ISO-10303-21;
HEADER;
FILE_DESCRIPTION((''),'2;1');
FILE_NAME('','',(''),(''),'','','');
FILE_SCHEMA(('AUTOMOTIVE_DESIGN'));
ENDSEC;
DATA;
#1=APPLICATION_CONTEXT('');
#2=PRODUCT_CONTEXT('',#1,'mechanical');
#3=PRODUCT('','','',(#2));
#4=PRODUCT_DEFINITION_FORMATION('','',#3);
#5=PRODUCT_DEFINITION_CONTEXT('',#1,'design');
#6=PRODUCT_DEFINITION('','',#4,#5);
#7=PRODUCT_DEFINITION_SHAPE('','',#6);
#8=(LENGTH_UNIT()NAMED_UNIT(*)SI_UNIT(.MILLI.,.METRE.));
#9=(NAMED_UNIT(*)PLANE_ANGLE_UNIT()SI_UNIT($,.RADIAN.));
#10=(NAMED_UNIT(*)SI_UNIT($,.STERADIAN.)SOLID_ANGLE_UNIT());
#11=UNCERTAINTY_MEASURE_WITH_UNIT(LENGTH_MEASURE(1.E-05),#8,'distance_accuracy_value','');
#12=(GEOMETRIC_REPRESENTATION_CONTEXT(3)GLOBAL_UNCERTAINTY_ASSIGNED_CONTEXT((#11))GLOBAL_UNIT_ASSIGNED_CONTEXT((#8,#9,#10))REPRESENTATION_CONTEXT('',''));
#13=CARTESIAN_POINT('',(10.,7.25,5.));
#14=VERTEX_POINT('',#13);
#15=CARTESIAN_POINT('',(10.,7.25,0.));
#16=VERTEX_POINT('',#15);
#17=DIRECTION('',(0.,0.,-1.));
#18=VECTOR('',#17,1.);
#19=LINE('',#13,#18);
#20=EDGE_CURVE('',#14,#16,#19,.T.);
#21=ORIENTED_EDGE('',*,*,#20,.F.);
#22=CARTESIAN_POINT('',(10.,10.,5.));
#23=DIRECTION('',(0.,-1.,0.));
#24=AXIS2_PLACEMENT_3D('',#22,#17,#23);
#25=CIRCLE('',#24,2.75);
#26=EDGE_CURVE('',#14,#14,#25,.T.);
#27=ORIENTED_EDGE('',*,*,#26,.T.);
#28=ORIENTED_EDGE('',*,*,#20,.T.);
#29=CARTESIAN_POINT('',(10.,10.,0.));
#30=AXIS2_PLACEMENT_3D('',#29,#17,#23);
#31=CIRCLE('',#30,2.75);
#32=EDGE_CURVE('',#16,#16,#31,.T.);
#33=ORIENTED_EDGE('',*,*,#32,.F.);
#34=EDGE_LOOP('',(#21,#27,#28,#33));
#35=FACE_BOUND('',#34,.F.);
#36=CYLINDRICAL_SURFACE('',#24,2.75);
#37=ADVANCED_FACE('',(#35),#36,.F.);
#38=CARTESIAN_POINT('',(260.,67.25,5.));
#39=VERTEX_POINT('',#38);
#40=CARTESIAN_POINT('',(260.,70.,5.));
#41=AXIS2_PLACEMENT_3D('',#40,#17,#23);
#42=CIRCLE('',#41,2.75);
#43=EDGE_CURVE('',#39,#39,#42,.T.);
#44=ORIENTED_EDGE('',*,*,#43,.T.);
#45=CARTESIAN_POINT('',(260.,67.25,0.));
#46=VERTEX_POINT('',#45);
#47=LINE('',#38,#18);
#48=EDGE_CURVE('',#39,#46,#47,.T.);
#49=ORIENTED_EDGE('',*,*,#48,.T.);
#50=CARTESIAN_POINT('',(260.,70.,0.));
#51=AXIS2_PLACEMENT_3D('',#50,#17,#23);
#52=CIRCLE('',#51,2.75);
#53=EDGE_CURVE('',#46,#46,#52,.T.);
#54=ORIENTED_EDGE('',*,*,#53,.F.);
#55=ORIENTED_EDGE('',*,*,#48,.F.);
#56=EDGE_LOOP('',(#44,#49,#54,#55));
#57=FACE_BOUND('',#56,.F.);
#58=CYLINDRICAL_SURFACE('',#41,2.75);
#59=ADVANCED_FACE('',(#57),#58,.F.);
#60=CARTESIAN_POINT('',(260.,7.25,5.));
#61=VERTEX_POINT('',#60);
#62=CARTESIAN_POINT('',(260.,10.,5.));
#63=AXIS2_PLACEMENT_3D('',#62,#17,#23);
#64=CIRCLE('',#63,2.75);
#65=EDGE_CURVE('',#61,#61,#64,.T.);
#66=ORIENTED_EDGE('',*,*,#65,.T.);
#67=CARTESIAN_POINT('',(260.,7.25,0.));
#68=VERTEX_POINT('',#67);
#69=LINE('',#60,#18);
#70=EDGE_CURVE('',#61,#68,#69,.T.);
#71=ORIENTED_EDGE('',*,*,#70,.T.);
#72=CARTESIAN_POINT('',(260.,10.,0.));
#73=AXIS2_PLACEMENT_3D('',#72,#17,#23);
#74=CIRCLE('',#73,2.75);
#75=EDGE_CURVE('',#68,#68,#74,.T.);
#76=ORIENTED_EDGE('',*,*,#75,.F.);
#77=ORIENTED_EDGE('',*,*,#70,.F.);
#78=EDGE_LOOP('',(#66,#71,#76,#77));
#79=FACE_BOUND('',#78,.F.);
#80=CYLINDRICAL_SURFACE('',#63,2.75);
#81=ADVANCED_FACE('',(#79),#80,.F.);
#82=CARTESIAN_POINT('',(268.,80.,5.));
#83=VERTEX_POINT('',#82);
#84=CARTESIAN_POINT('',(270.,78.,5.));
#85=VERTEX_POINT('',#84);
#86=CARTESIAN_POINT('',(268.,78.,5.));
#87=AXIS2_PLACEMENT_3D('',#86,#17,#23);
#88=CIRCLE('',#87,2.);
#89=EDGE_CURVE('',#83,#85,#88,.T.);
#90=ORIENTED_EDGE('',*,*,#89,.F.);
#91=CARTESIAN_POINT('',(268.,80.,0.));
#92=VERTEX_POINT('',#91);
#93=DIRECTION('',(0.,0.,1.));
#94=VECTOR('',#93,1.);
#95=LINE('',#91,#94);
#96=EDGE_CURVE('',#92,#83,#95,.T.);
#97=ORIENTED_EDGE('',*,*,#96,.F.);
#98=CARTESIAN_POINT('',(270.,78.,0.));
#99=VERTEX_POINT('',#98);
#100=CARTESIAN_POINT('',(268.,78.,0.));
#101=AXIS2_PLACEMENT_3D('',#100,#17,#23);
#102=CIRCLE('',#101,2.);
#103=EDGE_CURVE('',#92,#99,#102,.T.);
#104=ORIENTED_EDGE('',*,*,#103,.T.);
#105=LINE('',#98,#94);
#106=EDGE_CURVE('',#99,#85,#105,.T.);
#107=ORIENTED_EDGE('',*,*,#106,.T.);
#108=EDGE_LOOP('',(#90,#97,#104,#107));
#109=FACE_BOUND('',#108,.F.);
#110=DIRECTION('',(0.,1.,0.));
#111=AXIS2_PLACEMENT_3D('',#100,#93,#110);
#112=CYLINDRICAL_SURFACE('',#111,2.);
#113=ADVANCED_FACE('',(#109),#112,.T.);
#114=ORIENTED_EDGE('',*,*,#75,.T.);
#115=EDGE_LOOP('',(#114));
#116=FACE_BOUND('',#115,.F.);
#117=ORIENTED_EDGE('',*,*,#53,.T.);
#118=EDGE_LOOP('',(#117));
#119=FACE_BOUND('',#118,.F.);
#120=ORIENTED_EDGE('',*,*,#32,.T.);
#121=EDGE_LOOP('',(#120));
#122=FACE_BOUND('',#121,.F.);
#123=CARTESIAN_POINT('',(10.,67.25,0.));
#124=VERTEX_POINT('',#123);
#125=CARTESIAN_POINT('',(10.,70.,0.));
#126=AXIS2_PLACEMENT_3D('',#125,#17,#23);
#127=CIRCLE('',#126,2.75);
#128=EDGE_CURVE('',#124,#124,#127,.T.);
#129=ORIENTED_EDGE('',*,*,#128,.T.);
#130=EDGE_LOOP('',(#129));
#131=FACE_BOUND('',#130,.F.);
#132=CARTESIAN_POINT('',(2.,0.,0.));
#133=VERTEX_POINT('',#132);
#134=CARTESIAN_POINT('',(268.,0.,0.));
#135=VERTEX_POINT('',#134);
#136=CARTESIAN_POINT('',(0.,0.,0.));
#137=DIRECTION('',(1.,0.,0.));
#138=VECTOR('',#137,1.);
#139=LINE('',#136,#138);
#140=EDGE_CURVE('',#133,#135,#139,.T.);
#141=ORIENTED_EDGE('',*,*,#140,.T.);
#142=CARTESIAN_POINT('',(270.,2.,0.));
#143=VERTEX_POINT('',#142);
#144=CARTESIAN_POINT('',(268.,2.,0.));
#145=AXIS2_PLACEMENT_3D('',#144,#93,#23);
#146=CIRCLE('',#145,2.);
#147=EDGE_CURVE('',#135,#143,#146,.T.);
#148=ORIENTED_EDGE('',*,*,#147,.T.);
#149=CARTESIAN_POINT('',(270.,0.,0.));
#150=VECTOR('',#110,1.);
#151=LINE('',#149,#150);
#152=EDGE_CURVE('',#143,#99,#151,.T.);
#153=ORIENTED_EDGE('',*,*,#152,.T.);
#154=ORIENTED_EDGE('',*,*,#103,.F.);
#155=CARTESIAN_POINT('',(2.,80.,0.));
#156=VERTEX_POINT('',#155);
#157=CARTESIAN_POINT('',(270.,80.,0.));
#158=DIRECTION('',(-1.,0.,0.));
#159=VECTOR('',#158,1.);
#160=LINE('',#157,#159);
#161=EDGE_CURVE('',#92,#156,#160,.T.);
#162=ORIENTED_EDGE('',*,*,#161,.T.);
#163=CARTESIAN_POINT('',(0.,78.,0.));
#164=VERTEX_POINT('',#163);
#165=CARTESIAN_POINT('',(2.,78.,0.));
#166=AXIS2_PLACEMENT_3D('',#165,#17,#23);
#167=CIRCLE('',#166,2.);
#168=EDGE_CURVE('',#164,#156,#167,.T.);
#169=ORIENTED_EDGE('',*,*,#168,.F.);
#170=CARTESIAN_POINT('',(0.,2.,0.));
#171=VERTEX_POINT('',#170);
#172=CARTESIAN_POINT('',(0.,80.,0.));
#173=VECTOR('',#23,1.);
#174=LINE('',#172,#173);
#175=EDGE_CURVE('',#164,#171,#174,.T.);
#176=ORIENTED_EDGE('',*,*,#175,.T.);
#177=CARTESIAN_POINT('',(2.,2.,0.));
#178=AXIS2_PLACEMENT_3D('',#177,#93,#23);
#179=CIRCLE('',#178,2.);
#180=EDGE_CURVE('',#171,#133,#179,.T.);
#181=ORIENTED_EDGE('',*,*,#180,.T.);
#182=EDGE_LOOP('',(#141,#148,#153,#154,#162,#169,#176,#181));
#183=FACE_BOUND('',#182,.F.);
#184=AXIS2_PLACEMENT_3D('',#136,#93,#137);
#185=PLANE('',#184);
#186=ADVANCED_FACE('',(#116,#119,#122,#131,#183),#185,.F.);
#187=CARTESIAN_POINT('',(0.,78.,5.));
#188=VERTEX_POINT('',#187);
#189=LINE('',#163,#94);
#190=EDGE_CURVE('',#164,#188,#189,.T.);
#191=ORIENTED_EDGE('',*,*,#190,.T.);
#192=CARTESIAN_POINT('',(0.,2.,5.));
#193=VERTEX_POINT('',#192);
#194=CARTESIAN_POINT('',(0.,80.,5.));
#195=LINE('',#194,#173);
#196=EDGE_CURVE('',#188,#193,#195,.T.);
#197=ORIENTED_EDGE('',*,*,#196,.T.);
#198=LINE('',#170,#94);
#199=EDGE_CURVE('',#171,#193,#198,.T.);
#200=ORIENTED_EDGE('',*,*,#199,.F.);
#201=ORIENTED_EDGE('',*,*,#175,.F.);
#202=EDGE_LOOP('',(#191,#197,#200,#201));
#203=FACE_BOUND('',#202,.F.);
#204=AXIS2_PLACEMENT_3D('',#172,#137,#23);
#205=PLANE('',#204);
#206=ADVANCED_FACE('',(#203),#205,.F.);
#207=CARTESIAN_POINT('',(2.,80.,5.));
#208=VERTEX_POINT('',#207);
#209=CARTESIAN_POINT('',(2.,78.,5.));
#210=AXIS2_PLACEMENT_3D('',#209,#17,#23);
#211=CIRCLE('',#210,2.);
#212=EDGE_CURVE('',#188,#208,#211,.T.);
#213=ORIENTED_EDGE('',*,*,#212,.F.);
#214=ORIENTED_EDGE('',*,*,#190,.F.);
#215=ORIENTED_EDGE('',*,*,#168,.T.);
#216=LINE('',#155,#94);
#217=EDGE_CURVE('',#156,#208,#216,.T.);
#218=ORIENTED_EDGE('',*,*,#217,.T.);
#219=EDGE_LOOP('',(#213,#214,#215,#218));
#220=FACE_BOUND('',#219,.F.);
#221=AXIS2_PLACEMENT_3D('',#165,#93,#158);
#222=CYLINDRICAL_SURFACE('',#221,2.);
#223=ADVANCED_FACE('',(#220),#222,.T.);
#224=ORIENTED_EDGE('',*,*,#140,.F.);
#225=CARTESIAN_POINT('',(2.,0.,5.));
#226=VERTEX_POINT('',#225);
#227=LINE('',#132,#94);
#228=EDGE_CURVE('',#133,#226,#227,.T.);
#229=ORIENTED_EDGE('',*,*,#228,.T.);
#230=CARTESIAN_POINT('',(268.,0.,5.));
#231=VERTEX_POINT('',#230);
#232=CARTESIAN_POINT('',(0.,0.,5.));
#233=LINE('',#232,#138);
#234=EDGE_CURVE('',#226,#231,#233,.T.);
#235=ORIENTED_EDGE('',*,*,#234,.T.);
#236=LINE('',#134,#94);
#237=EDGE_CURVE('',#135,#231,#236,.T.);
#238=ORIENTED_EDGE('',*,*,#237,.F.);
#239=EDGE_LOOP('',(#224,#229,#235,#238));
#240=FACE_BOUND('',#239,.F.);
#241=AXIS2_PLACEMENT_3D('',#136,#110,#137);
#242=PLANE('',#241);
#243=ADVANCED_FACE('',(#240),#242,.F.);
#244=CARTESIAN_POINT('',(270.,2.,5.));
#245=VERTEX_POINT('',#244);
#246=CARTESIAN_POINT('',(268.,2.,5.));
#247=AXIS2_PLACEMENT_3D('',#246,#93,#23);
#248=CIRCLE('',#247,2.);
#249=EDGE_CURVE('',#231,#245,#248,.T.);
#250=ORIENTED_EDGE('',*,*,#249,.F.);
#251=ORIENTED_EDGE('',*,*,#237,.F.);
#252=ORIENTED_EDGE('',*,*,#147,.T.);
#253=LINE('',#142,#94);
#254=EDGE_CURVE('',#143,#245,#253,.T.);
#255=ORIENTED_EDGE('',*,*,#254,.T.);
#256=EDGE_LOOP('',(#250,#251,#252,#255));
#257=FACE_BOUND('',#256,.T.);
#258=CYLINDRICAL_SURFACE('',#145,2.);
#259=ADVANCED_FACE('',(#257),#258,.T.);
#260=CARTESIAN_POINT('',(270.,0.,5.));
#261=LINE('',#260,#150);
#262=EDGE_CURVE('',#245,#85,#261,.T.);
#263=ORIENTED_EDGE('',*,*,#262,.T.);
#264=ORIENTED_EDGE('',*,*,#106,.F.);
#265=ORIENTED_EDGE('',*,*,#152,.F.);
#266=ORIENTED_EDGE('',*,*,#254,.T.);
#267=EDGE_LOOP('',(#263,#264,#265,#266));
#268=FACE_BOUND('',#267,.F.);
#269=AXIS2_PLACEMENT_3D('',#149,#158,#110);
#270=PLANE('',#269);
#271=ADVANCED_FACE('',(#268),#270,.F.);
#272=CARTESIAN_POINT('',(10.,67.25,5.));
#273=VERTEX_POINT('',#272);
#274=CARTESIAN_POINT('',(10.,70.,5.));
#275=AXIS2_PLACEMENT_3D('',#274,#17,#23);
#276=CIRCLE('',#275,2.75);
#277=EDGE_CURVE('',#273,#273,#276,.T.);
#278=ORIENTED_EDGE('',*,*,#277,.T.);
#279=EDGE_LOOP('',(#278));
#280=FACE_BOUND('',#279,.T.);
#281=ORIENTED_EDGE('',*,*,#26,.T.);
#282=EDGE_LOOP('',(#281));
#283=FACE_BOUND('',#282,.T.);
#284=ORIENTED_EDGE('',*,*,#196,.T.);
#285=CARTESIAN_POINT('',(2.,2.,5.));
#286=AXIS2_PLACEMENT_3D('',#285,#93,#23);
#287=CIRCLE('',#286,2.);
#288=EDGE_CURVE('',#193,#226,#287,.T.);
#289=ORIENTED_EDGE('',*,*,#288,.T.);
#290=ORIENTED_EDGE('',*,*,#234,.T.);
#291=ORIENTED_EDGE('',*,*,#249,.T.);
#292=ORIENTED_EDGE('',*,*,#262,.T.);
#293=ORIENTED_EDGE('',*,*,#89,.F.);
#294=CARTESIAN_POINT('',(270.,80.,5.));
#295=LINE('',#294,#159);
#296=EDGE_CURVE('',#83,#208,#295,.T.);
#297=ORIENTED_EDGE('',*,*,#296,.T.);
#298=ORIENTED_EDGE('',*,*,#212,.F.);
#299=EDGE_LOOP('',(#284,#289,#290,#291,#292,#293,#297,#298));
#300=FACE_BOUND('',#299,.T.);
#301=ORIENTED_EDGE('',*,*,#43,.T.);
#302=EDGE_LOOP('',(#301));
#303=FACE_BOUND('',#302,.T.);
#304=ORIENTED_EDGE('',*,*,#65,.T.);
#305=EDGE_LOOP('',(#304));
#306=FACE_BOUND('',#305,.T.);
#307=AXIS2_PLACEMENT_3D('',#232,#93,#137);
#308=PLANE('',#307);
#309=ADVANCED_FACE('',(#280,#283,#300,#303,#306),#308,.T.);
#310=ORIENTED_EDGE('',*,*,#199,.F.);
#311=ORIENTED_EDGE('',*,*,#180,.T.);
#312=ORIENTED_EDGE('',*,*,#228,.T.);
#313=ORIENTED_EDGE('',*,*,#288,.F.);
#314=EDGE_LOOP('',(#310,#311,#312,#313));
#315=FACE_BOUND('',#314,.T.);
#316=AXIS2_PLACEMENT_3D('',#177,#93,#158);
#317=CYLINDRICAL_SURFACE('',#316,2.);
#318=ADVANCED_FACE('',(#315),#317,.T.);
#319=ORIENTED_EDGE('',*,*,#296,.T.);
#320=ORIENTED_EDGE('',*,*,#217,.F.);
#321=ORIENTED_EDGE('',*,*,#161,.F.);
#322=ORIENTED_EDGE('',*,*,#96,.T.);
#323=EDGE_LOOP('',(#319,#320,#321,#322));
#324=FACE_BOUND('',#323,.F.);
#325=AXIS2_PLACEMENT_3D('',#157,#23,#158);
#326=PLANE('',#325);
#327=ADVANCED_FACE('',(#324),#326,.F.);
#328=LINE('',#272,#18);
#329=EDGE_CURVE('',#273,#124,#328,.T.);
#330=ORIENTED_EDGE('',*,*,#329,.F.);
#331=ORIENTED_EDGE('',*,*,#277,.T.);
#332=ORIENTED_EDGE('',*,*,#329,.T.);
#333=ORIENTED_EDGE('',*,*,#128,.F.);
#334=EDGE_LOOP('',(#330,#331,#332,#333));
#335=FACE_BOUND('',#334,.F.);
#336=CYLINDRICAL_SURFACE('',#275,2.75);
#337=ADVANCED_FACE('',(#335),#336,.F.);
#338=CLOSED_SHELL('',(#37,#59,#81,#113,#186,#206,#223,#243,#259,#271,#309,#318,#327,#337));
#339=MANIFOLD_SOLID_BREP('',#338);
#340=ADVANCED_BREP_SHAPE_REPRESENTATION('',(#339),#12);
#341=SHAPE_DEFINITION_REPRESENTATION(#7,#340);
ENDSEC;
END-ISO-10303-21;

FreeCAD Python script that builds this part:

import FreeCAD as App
import Part
import Sketcher

V = App.Vector


def edges_at(feature, points):
    """Names of the edges that pass closest to the given points."""
    edges = feature.Shape.Edges
    near = lambda p: min(range(len(edges)), key=lambda i: edges[i].distToShape(Part.Vertex(*p))[0])
    return sorted({f"Edge{near(p) + 1}" for p in points})

doc = App.newDocument("Part")
body = doc.addObject("PartDesign::Body", "Body")

# Sketch on XY plane
sketch1 = body.newObject("Sketcher::SketchObject", "Sketch")
sketch1.AttachmentSupport = (doc.getObject("XY_Plane"), [""])
sketch1.MapMode = "FlatFace"
sketch1.addGeometry([
    Part.LineSegment(V(0, 80, 0), V(0, 0, 0)),
    Part.LineSegment(V(0, 0, 0), V(270, 0, 0)),
    Part.LineSegment(V(270, 0, 0), V(270, 80, 0)),
    Part.LineSegment(V(270, 80, 0), V(0, 80, 0)),
], False)
sketch1.addConstraint([
    Sketcher.Constraint("Coincident", 0, 2, 1, 1),
    Sketcher.Constraint("Coincident", 1, 2, 2, 1),
    Sketcher.Constraint("Coincident", 2, 2, 3, 1),
    Sketcher.Constraint("Coincident", 3, 2, 0, 1),
    Sketcher.Constraint("Vertical", 0),
    Sketcher.Constraint("Horizontal", 1),
    Sketcher.Constraint("Vertical", 2),
    Sketcher.Constraint("Horizontal", 3),
    Sketcher.Constraint("Coincident", 0, 2, -1, 1),
    Sketcher.Constraint("DistanceX", 1, 1, 1, 2, 270.0),
    Sketcher.Constraint("DistanceY", 0, 2, 0, 1, 80.0),
])
pad1 = body.newObject("PartDesign::Pad", "Pad")
pad1.Profile = sketch1
pad1.Length = 5

# Sketch on XY plane
sketch2 = body.newObject("Sketcher::SketchObject", "Sketch001")
sketch2.AttachmentSupport = (doc.getObject("XY_Plane"), [""])
sketch2.MapMode = "FlatFace"
sketch2.AttachmentOffset = App.Placement(V(0, 0, 5), App.Rotation())
sketch2.addGeometry([
    Part.Circle(V(10, 70, 0), V(0, 0, 1), 2.75),
    Part.Circle(V(10, 10, 0), V(0, 0, 1), 2.75),
    Part.Circle(V(260, 10, 0), V(0, 0, 1), 2.75),
    Part.Circle(V(260, 70, 0), V(0, 0, 1), 2.75),
], False)
sketch2.addConstraint([
    Sketcher.Constraint("Equal", 0, 1),
    Sketcher.Constraint("Equal", 1, 2),
    Sketcher.Constraint("Equal", 2, 3),
    Sketcher.Constraint("Horizontal", 1, 3, 2, 3),
    Sketcher.Constraint("Horizontal", 0, 3, 3, 3),
    Sketcher.Constraint("Vertical", 0, 3, 1, 3),
    Sketcher.Constraint("Vertical", 2, 3, 3, 3),
    Sketcher.Constraint("Diameter", 0, 5.5),
    Sketcher.Constraint("DistanceX", -1, 1, 0, 3, 10.0),
    Sketcher.Constraint("DistanceY", -1, 1, 0, 3, 70.0),
    Sketcher.Constraint("DistanceY", -1, 1, 1, 3, 10.0),
    Sketcher.Constraint("DistanceX", -1, 1, 2, 3, 260.0),
])
doc.recompute()
hole = body.newObject("PartDesign::Hole", "Hole")
hole.Profile = sketch2
hole.ThreadType = "None"
hole.Diameter = 5.5
hole.DepthType = "ThroughAll"
doc.recompute()

fillet = body.newObject("PartDesign::Fillet", "Fillet")
fillet.Base = (hole, edges_at(hole, [
    (0, 80, 2.5),
    (270, 80, 2.5),
    (270, 0, 2.5),
    (0, 0, 2.5),
]))
fillet.Radius = 2

doc.recompute()
